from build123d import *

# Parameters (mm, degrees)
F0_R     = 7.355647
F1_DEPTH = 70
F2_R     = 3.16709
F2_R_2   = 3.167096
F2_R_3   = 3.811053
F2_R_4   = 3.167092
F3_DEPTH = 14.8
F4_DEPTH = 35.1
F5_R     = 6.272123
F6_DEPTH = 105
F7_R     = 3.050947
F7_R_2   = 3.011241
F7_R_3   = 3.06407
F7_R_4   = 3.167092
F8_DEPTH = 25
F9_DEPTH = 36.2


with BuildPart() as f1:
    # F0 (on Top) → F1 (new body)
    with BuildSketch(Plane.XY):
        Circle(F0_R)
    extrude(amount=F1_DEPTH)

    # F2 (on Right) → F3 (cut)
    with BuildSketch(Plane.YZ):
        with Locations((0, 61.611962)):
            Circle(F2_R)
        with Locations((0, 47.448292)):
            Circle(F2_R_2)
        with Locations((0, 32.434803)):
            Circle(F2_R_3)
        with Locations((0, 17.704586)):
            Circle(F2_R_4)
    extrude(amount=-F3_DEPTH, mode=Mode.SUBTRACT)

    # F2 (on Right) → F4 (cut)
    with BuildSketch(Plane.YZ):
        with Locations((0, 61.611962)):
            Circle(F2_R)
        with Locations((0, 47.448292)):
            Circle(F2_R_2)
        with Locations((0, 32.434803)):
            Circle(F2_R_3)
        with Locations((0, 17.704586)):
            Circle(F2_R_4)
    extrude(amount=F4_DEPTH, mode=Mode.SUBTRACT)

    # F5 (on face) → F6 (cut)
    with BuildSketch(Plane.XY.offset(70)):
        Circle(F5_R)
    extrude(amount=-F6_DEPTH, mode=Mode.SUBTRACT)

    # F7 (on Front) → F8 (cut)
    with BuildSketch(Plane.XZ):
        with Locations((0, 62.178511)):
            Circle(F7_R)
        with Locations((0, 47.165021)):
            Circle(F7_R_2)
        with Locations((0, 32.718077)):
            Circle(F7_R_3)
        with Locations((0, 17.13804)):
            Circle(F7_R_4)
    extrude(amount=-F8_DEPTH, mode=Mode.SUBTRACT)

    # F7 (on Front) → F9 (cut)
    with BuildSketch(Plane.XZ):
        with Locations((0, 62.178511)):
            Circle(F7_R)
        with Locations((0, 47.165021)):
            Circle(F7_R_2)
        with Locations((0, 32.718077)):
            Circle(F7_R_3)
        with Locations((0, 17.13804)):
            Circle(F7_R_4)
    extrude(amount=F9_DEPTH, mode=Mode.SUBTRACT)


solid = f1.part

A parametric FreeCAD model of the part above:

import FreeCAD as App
import Part
import Sketcher

V = App.Vector
Q = App.Units.Quantity

doc = App.newDocument("Part")
params = doc.addObject("Spreadsheet::Sheet", "Params")
for row, (alias, value) in enumerate([
    ("pad1_length", "70 mm"),
    ("pocket1_length", "14.8 mm"),
    ("pocket2_length", "35.1 mm"),
    ("pocket3_length", "105 mm"),
    ("pocket4_length", "25 mm"),
    ("pocket5_length", "36.2 mm"),
], start=1):
    params.set(f"A{row}", alias)
    params.set(f"B{row}", "=" + value)
    params.setAlias(f"B{row}", alias)

body = doc.addObject("PartDesign::Body", "Body")

# Sketch on XY plane
sketch1 = body.newObject("Sketcher::SketchObject", "Sketch")
sketch1.AttachmentSupport = (doc.getObject("XY_Plane"), [""])
sketch1.MapMode = "FlatFace"
sketch1.addGeometry(Part.Circle(V(0, 0, 0), V(0, 0, 1), 7.355647), False)
sketch1.addConstraint(Sketcher.Constraint("Coincident", 0, 3, -1, 1))
sketch1.addConstraint(Sketcher.Constraint("Diameter", 0, Q("14.711294 mm")))
pad1 = body.newObject("PartDesign::Pad", "Pad")
pad1.Profile = sketch1
pad1.setExpression("Length", "Params.pad1_length")

# Sketch on YZ plane
sketch2 = body.newObject("Sketcher::SketchObject", "Sketch001")
sketch2.AttachmentSupport = (doc.getObject("YZ_Plane"), [""])
sketch2.MapMode = "FlatFace"
sketch2.addGeometry(Part.Circle(V(0, 61.611962, 0), V(0, 0, 1), 3.16709), False)
sketch2.addGeometry(Part.Circle(V(0, 47.448292, 0), V(0, 0, 1), 3.167096), False)
sketch2.addGeometry(Part.Circle(V(0, 32.434803, 0), V(0, 0, 1), 3.811053), False)
sketch2.addGeometry(Part.Circle(V(0, 17.704586, 0), V(0, 0, 1), 3.167092), False)
sketch2.addConstraint(Sketcher.Constraint("Equal", 0, 3))
sketch2.addConstraint(Sketcher.Constraint("PointOnObject", 0, 3, -2))
sketch2.addConstraint(Sketcher.Constraint("PointOnObject", 1, 3, -2))
sketch2.addConstraint(Sketcher.Constraint("PointOnObject", 2, 3, -2))
sketch2.addConstraint(Sketcher.Constraint("PointOnObject", 3, 3, -2))
sketch2.addConstraint(Sketcher.Constraint("Diameter", 0, Q("6.33418 mm")))
sketch2.addConstraint(Sketcher.Constraint("Diameter", 1, Q("6.334192 mm")))
sketch2.addConstraint(Sketcher.Constraint("Diameter", 2, Q("7.622106 mm")))
sketch2.addConstraint(Sketcher.Constraint("DistanceY", -1, 1, 0, 3, Q("61.611962 mm")))
sketch2.addConstraint(Sketcher.Constraint("DistanceY", 1, 3, 0, 3, Q("14.16367 mm")))
sketch2.addConstraint(Sketcher.Constraint("DistanceY", 2, 3, 1, 3, Q("15.013489 mm")))
sketch2.addConstraint(Sketcher.Constraint("DistanceY", -1, 1, 3, 3, Q("17.704586 mm")))
pocket1 = body.newObject("PartDesign::Pocket", "Pocket")
pocket1.Profile = sketch2
pocket1.setExpression("Length", "Params.pocket1_length")

# Sketch on YZ plane
sketch3 = body.newObject("Sketcher::SketchObject", "Sketch002")
sketch3.AttachmentSupport = (doc.getObject("YZ_Plane"), [""])
sketch3.MapMode = "FlatFace"
sketch3.addGeometry(Part.Circle(V(0, 61.611962, 0), V(0, 0, 1), 3.16709), False)
sketch3.addGeometry(Part.Circle(V(0, 47.448292, 0), V(0, 0, 1), 3.167096), False)
sketch3.addGeometry(Part.Circle(V(0, 32.434803, 0), V(0, 0, 1), 3.811053), False)
sketch3.addGeometry(Part.Circle(V(0, 17.704586, 0), V(0, 0, 1), 3.167092), False)
sketch3.addConstraint(Sketcher.Constraint("Equal", 0, 3))
sketch3.addConstraint(Sketcher.Constraint("PointOnObject", 0, 3, -2))
sketch3.addConstraint(Sketcher.Constraint("PointOnObject", 1, 3, -2))
sketch3.addConstraint(Sketcher.Constraint("PointOnObject", 2, 3, -2))
sketch3.addConstraint(Sketcher.Constraint("PointOnObject", 3, 3, -2))
sketch3.addConstraint(Sketcher.Constraint("Diameter", 0, Q("6.33418 mm")))
sketch3.addConstraint(Sketcher.Constraint("Diameter", 1, Q("6.334192 mm")))
sketch3.addConstraint(Sketcher.Constraint("Diameter", 2, Q("7.622106 mm")))
sketch3.addConstraint(Sketcher.Constraint("DistanceY", -1, 1, 0, 3, Q("61.611962 mm")))
sketch3.addConstraint(Sketcher.Constraint("DistanceY", 1, 3, 0, 3, Q("14.16367 mm")))
sketch3.addConstraint(Sketcher.Constraint("DistanceY", 2, 3, 1, 3, Q("15.013489 mm")))
sketch3.addConstraint(Sketcher.Constraint("DistanceY", -1, 1, 3, 3, Q("17.704586 mm")))
pocket2 = body.newObject("PartDesign::Pocket", "Pocket001")
pocket2.Profile = sketch3
pocket2.setExpression("Length", "Params.pocket2_length")
pocket2.Reversed = True

# Sketch on XY plane
sketch4 = body.newObject("Sketcher::SketchObject", "Sketch003")
sketch4.AttachmentSupport = (doc.getObject("XY_Plane"), [""])
sketch4.MapMode = "FlatFace"
sketch4.AttachmentOffset = App.Placement(V(0, 0, 70), App.Rotation())
sketch4.addGeometry(Part.Circle(V(0, 0, 0), V(0, 0, 1), 6.272123), False)
sketch4.addConstraint(Sketcher.Constraint("Coincident", 0, 3, -1, 1))
sketch4.addConstraint(Sketcher.Constraint("Diameter", 0, Q("12.544246 mm")))
pocket3 = body.newObject("PartDesign::Pocket", "Pocket002")
pocket3.Profile = sketch4
pocket3.setExpression("Length", "Params.pocket3_length")

# Sketch on XZ plane
sketch5 = body.newObject("Sketcher::SketchObject", "Sketch004")
sketch5.AttachmentSupport = (doc.getObject("XZ_Plane"), [""])
sketch5.MapMode = "FlatFace"
sketch5.addGeometry(Part.Circle(V(0, 62.178511, 0), V(0, 0, 1), 3.050947), False)
sketch5.addGeometry(Part.Circle(V(0, 47.165021, 0), V(0, 0, 1), 3.011241), False)
sketch5.addGeometry(Part.Circle(V(0, 32.718077, 0), V(0, 0, 1), 3.06407), False)
sketch5.addGeometry(Part.Circle(V(0, 17.13804, 0), V(0, 0, 1), 3.167092), False)
sketch5.addConstraint(Sketcher.Constraint("PointOnObject", 0, 3, -2))
sketch5.addConstraint(Sketcher.Constraint("PointOnObject", 1, 3, -2))
sketch5.addConstraint(Sketcher.Constraint("PointOnObject", 2, 3, -2))
sketch5.addConstraint(Sketcher.Constraint("PointOnObject", 3, 3, -2))
sketch5.addConstraint(Sketcher.Constraint("Diameter", 2, Q("6.12814 mm")))
sketch5.addConstraint(Sketcher.Constraint("Diameter", 0, Q("6.101894 mm")))
sketch5.addConstraint(Sketcher.Constraint("Diameter", 1, Q("6.022482 mm")))
sketch5.addConstraint(Sketcher.Constraint("Diameter", 3, Q("6.334184 mm")))
sketch5.addConstraint(Sketcher.Constraint("DistanceY", -1, 1, 0, 3, Q("62.178511 mm")))
sketch5.addConstraint(Sketcher.Constraint("DistanceY", -1, 1, 1, 3, Q("47.165021 mm")))
sketch5.addConstraint(Sketcher.Constraint("DistanceY", -1, 1, 3, 3, Q("17.13804 mm")))
sketch5.addConstraint(Sketcher.Constraint("DistanceY", -1, 1, 2, 3, Q("32.718077 mm")))
pocket4 = body.newObject("PartDesign::Pocket", "Pocket003")
pocket4.Profile = sketch5
pocket4.setExpression("Length", "Params.pocket4_length")

# Sketch on XZ plane
sketch6 = body.newObject("Sketcher::SketchObject", "Sketch005")
sketch6.AttachmentSupport = (doc.getObject("XZ_Plane"), [""])
sketch6.MapMode = "FlatFace"
sketch6.addGeometry(Part.Circle(V(0, 62.178511, 0), V(0, 0, 1), 3.050947), False)
sketch6.addGeometry(Part.Circle(V(0, 47.165021, 0), V(0, 0, 1), 3.011241), False)
sketch6.addGeometry(Part.Circle(V(0, 32.718077, 0), V(0, 0, 1), 3.06407), False)
sketch6.addGeometry(Part.Circle(V(0, 17.13804, 0), V(0, 0, 1), 3.167092), False)
sketch6.addConstraint(Sketcher.Constraint("PointOnObject", 0, 3, -2))
sketch6.addConstraint(Sketcher.Constraint("PointOnObject", 1, 3, -2))
sketch6.addConstraint(Sketcher.Constraint("PointOnObject", 2, 3, -2))
sketch6.addConstraint(Sketcher.Constraint("PointOnObject", 3, 3, -2))
sketch6.addConstraint(Sketcher.Constraint("Diameter", 2, Q("6.12814 mm")))
sketch6.addConstraint(Sketcher.Constraint("Diameter", 0, Q("6.101894 mm")))
sketch6.addConstraint(Sketcher.Constraint("Diameter", 1, Q("6.022482 mm")))
sketch6.addConstraint(Sketcher.Constraint("Diameter", 3, Q("6.334184 mm")))
sketch6.addConstraint(Sketcher.Constraint("DistanceY", -1, 1, 0, 3, Q("62.178511 mm")))
sketch6.addConstraint(Sketcher.Constraint("DistanceY", -1, 1, 1, 3, Q("47.165021 mm")))
sketch6.addConstraint(Sketcher.Constraint("DistanceY", -1, 1, 3, 3, Q("17.13804 mm")))
sketch6.addConstraint(Sketcher.Constraint("DistanceY", -1, 1, 2, 3, Q("32.718077 mm")))
pocket5 = body.newObject("PartDesign::Pocket", "Pocket004")
pocket5.Profile = sketch6
pocket5.setExpression("Length", "Params.pocket5_length")
pocket5.Reversed = True

doc.recompute()
